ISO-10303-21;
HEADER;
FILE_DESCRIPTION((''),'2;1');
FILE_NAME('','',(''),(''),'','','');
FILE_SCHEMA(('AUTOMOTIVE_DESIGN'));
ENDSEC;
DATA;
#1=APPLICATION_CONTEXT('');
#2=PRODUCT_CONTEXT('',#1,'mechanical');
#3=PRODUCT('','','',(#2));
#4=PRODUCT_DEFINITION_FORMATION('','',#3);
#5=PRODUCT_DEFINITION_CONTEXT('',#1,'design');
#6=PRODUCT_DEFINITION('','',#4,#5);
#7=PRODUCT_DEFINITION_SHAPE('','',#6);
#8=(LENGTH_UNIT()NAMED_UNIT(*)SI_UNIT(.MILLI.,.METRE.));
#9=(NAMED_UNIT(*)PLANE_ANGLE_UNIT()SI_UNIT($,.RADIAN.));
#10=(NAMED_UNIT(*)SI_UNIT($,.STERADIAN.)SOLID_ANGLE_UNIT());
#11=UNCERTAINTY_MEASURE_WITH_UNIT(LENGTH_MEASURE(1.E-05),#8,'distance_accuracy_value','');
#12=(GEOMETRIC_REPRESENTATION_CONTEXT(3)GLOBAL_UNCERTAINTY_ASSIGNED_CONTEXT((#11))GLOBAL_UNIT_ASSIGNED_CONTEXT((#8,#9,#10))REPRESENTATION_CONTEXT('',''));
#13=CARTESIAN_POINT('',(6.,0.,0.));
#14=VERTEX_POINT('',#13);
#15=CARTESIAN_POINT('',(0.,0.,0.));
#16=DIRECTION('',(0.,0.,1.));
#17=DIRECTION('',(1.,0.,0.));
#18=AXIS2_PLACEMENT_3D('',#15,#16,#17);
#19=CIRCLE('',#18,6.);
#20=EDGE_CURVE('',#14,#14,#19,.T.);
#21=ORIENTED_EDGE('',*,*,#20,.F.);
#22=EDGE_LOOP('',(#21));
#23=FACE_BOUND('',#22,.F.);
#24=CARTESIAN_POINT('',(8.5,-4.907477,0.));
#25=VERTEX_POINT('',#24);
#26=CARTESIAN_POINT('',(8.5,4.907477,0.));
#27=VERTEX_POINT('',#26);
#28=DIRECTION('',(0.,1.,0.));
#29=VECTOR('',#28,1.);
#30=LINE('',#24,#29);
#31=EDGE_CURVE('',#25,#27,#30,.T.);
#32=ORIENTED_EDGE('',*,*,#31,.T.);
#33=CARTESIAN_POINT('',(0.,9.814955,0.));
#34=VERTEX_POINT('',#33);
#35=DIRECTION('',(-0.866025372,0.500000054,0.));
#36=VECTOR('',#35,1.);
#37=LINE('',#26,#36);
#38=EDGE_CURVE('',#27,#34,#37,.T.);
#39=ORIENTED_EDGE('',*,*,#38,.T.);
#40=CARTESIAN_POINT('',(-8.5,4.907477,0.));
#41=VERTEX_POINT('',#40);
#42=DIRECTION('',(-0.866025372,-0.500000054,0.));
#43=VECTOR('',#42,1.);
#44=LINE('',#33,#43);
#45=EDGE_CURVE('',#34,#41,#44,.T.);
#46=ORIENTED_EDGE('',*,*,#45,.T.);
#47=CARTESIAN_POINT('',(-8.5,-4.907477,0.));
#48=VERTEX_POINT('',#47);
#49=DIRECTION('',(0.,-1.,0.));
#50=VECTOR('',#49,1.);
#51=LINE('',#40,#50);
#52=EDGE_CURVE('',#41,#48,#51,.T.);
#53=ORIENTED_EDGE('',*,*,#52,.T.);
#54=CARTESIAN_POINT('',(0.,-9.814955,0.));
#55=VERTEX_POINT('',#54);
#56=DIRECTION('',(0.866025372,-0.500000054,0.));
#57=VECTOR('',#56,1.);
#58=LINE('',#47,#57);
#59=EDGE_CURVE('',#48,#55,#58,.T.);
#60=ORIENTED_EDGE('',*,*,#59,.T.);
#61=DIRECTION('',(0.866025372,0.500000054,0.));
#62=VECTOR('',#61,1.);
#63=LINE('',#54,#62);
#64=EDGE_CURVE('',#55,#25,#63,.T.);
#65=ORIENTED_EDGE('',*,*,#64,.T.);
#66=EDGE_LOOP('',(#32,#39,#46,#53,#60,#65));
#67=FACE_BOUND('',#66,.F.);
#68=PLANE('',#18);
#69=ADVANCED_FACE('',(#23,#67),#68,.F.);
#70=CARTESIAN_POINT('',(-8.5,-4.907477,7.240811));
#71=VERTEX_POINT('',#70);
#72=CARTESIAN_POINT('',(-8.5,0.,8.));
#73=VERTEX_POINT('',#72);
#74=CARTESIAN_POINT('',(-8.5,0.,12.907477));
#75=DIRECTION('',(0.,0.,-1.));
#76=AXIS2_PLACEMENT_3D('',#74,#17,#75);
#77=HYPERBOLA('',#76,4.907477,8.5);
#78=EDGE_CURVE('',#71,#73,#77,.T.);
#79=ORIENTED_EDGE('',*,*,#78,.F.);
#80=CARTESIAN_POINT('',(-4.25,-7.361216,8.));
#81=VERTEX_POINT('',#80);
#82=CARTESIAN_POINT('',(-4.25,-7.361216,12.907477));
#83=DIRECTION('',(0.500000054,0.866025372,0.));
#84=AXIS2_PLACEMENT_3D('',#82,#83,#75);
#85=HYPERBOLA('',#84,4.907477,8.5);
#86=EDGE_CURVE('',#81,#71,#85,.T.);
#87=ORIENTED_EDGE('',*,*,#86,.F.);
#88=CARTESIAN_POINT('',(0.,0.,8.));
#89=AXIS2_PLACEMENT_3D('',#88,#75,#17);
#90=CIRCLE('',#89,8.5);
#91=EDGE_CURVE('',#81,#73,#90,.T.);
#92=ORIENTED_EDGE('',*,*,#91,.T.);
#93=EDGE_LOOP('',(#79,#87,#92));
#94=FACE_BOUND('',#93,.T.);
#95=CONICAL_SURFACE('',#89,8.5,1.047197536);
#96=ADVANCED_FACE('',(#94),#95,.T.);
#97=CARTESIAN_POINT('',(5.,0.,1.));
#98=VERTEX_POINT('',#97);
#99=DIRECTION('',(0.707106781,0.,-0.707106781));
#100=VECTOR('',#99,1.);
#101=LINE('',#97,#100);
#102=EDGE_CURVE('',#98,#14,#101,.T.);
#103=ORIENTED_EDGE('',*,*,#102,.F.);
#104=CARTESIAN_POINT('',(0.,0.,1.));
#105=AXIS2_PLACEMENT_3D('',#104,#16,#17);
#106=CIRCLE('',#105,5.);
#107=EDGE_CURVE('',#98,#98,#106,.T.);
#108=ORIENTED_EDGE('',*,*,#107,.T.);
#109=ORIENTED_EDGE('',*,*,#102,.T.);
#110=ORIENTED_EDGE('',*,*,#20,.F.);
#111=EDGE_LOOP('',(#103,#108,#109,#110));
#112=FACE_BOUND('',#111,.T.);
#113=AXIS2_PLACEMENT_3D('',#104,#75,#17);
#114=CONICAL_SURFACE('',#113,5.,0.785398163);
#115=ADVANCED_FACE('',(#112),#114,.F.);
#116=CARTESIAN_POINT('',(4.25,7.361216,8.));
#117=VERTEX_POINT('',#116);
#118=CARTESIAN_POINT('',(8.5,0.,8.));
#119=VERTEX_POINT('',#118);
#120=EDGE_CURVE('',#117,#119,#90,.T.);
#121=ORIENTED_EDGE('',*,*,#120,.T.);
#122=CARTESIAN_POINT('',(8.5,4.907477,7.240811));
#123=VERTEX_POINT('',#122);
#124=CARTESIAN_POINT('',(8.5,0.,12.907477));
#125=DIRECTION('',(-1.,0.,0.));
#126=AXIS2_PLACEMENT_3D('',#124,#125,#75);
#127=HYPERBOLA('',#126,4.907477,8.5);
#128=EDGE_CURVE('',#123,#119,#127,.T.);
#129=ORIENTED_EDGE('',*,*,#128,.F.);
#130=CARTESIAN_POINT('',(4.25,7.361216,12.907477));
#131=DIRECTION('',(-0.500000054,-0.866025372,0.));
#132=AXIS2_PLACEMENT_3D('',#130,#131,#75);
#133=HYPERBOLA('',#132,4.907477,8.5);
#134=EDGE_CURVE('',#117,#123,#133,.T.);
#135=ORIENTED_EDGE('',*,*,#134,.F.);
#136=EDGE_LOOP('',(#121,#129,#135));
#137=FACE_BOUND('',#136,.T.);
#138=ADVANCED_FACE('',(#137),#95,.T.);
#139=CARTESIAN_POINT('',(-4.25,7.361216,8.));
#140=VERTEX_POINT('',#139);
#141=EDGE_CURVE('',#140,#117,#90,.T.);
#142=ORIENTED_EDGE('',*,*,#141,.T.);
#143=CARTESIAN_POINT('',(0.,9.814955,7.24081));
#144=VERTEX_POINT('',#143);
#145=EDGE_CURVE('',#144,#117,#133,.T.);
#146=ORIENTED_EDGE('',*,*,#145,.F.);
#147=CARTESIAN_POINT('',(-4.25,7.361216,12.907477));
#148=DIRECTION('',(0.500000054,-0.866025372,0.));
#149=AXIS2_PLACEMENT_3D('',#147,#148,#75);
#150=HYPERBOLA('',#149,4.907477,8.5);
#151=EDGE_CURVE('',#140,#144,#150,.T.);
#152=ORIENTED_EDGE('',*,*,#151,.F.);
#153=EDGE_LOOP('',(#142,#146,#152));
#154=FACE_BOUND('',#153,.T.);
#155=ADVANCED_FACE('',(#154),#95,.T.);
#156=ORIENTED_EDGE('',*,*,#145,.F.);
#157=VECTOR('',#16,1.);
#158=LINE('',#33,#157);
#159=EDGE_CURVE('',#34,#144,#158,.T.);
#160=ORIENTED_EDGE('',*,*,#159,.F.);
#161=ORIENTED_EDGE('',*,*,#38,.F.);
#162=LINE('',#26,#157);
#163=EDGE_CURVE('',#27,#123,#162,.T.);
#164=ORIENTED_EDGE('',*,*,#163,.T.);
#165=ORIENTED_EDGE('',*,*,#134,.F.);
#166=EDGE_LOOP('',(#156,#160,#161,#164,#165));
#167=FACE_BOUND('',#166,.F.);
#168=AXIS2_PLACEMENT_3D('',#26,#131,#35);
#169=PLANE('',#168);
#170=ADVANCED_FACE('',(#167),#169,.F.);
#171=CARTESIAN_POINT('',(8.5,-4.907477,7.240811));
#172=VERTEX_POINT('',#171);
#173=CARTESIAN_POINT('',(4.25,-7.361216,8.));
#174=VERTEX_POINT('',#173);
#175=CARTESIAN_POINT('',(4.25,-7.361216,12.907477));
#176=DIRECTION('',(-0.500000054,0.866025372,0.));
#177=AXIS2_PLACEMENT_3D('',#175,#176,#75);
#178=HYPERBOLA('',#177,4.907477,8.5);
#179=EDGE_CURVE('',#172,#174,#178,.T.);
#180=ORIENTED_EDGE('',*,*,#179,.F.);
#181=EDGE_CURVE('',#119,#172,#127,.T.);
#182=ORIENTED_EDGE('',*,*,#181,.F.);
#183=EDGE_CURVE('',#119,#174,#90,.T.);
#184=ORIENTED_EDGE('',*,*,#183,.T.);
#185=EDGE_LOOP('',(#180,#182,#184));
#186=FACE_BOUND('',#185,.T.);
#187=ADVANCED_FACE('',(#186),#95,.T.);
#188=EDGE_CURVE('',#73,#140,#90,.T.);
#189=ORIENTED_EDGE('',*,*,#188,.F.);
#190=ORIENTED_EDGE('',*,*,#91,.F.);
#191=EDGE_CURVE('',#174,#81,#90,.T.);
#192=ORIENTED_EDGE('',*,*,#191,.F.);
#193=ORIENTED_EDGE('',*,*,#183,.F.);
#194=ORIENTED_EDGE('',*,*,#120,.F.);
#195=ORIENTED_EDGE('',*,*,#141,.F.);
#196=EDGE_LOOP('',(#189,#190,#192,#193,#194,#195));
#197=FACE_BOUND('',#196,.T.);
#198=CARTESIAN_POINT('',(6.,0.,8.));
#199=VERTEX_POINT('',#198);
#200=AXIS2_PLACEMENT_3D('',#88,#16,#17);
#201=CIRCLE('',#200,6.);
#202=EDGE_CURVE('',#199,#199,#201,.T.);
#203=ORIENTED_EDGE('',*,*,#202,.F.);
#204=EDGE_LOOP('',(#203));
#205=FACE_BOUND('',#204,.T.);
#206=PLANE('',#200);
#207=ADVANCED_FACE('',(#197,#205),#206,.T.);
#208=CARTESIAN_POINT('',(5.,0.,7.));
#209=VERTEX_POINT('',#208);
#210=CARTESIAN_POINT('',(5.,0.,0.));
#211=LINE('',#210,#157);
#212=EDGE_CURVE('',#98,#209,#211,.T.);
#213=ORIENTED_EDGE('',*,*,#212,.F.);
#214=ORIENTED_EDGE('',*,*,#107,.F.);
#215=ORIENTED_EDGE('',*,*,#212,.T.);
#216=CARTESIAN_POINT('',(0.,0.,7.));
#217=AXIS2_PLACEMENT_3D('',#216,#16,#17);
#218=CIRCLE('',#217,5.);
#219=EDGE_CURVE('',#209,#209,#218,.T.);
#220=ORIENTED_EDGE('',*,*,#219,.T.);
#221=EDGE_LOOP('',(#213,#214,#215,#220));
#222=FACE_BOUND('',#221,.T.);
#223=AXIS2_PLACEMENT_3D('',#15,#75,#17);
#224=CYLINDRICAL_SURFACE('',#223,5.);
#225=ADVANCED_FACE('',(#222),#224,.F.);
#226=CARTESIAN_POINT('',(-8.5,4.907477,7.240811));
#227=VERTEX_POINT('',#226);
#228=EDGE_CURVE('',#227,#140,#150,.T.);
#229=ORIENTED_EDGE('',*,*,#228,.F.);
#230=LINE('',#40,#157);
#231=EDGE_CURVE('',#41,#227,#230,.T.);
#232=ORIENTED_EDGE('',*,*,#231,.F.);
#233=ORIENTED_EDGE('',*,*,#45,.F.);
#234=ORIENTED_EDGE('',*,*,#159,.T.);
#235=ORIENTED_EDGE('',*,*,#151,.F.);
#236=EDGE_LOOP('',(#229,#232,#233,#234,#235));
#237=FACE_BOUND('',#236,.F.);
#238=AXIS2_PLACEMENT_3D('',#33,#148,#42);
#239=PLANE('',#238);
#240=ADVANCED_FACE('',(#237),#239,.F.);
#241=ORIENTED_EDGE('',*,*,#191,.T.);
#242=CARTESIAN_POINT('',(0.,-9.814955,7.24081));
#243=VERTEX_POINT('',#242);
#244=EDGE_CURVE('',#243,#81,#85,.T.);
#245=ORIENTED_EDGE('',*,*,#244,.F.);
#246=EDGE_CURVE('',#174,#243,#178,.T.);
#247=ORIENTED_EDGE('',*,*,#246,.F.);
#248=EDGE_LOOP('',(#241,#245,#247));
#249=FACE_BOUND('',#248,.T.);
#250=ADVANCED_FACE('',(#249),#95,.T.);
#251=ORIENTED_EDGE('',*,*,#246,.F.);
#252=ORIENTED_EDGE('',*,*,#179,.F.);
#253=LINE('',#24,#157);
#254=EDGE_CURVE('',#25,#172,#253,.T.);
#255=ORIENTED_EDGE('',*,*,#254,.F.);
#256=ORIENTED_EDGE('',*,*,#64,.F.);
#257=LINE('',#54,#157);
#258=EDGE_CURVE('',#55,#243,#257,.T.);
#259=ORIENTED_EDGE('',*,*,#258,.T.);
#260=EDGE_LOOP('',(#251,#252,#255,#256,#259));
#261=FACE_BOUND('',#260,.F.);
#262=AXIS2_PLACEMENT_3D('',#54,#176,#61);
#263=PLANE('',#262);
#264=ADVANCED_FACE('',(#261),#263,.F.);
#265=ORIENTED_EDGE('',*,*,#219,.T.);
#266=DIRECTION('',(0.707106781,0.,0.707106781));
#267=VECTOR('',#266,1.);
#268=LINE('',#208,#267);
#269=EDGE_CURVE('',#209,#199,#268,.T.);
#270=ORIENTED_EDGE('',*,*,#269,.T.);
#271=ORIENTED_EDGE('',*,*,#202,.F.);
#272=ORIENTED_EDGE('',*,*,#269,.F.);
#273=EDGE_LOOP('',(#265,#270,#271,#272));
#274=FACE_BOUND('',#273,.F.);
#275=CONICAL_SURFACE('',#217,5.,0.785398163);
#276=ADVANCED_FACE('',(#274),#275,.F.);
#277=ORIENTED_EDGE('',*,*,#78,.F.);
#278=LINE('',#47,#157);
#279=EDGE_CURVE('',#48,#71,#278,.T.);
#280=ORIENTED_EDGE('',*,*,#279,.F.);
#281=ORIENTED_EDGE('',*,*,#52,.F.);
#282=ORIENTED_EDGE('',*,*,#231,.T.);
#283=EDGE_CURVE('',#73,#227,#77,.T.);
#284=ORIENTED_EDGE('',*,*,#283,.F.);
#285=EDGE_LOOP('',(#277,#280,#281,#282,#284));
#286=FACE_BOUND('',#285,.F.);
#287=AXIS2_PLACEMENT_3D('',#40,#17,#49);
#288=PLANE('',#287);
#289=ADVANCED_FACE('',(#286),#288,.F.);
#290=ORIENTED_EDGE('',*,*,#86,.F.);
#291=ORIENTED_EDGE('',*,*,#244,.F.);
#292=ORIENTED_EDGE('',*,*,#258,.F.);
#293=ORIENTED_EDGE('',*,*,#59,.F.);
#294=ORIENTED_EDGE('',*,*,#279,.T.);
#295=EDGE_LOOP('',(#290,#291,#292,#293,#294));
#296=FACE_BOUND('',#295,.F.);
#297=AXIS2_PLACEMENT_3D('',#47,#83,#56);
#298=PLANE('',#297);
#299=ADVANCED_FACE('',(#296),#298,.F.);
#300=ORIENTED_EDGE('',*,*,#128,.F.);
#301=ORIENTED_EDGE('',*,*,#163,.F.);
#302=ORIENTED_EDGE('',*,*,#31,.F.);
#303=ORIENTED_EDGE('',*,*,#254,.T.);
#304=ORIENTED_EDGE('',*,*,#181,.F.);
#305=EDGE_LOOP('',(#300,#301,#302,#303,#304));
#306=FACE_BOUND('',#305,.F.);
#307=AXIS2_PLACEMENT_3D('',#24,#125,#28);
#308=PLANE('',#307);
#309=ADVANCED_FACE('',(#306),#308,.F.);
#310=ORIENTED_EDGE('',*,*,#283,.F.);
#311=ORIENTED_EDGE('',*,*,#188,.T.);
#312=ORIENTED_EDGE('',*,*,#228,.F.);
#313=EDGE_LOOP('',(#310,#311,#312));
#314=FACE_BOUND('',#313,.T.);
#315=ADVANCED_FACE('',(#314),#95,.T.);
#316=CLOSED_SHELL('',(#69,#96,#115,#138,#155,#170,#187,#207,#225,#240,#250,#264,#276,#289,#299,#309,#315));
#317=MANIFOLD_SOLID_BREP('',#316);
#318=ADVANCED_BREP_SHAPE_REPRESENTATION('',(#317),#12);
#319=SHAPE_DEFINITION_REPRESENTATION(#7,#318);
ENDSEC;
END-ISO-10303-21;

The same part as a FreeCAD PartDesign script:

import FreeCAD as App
import Part
import Sketcher
from FreeCAD import Vector
Q = App.Units.Quantity


def edges_at(feature, points):
    """Names of the edges that pass closest to the given points."""
    edges = feature.Shape.Edges
    near = lambda p: min(range(len(edges)), key=lambda i: edges[i].distToShape(Part.Vertex(*p))[0])
    return sorted({f"Edge{near(p) + 1}" for p in points})


def add_polygon(sketch, points):
    """Adds a closed chain of lines whose ends are joined by coincident constraints."""
    first, n = sketch.GeometryCount, len(points)
    for a, b in zip(points, points[1:] + points[:1]):
        sketch.addGeometry(Part.LineSegment(App.Vector(*a, 0), App.Vector(*b, 0)), False)
    for i in range(n):
        sketch.addConstraint(Sketcher.Constraint("Coincident", first + i, 2, first + (i + 1) % n, 1))

doc = App.newDocument("Part")
body = doc.addObject("PartDesign::Body", "Body")

# Sketch on XY plane
sketch1 = body.newObject("Sketcher::SketchObject", "Sketch")
sketch1.AttachmentSupport = (doc.getObject("XY_Plane"), [""])
sketch1.MapMode = "FlatFace"
add_polygon(sketch1, [(0, -10), (8, -5), (8, 5), (0, 10), (-8, 5), (-8, -5)])  # lines 0-5
sketch1.addGeometry(Part.Circle(Vector(0, 0, 0), Vector(0, 0, 1), 5), False)  # 6
sketch1.addConstraint(Sketcher.Constraint("Vertical", 1))
sketch1.addConstraint(Sketcher.Constraint("Vertical", 4))
sketch1.addConstraint(Sketcher.Constraint("Coincident", 6, 3, -1, 1))
sketch1.addConstraint(Sketcher.Constraint("Symmetric", 0, 2, 3, 2, -1, 1))
sketch1.addConstraint(Sketcher.Constraint("Symmetric", 2, 2, 5, 2, -1, 1))
sketch1.addConstraint(Sketcher.Constraint("PointOnObject", 2, 2, -2))
sketch1.addConstraint(Sketcher.Constraint("Parallel", 2, 5))
sketch1.addConstraint(Sketcher.Constraint("Horizontal", 1, 2, 3, 2))
sketch1.addConstraint(Sketcher.Constraint("Diameter", 6, 10.0))
sketch1.addConstraint(Sketcher.Constraint("Angle", 0, Q("30.000004 deg")))
sketch1.addConstraint(Sketcher.Constraint("DistanceX", 3, 2, 1, 2, 17.0))
sketch1.addConstraint(Sketcher.Constraint("DistanceY", 1, 1, 1, 2, 9.814954))
pad1 = body.newObject("PartDesign::Pad", "Pad")
pad1.Profile = sketch1
pad1.Length = 8
doc.recompute()

chamfer = body.newObject("PartDesign::Chamfer", "Chamfer")
chamfer.Base = (pad1, edges_at(pad1, [(-5, 0, 8), (-5, 0, 0)]))
chamfer.Size = 1

# Sketch on XZ plane
sketch2 = body.newObject("Sketcher::SketchObject", "Sketch001")
sketch2.AttachmentSupport = (doc.getObject("XZ_Plane"), [""])
sketch2.MapMode = "FlatFace"
add_polygon(sketch2, [(18, 8), (8, 8), (18, 2)])  # lines 0-2
sketch2.addConstraint(Sketcher.Constraint("Horizontal", 0))
sketch2.addConstraint(Sketcher.Constraint("Vertical", 2))
sketch2.addConstraint(Sketcher.Constraint("Angle", 1, Q("-30.000001 deg")))
sketch2.addConstraint(Sketcher.Constraint("DistanceY", -1, 1, 0, 2, 8.0))
sketch2.addConstraint(Sketcher.Constraint("DistanceX", -1, 1, 0, 2, 8.5))
sketch2.addConstraint(Sketcher.Constraint("DistanceX", 0, 2, 0, 1, 9.532537))
groove = body.newObject("PartDesign::Groove", "Groove")
groove.Profile = sketch2
groove.ReferenceAxis = (sketch2, ["V_Axis"])
groove.Angle = 360

doc.recompute()
